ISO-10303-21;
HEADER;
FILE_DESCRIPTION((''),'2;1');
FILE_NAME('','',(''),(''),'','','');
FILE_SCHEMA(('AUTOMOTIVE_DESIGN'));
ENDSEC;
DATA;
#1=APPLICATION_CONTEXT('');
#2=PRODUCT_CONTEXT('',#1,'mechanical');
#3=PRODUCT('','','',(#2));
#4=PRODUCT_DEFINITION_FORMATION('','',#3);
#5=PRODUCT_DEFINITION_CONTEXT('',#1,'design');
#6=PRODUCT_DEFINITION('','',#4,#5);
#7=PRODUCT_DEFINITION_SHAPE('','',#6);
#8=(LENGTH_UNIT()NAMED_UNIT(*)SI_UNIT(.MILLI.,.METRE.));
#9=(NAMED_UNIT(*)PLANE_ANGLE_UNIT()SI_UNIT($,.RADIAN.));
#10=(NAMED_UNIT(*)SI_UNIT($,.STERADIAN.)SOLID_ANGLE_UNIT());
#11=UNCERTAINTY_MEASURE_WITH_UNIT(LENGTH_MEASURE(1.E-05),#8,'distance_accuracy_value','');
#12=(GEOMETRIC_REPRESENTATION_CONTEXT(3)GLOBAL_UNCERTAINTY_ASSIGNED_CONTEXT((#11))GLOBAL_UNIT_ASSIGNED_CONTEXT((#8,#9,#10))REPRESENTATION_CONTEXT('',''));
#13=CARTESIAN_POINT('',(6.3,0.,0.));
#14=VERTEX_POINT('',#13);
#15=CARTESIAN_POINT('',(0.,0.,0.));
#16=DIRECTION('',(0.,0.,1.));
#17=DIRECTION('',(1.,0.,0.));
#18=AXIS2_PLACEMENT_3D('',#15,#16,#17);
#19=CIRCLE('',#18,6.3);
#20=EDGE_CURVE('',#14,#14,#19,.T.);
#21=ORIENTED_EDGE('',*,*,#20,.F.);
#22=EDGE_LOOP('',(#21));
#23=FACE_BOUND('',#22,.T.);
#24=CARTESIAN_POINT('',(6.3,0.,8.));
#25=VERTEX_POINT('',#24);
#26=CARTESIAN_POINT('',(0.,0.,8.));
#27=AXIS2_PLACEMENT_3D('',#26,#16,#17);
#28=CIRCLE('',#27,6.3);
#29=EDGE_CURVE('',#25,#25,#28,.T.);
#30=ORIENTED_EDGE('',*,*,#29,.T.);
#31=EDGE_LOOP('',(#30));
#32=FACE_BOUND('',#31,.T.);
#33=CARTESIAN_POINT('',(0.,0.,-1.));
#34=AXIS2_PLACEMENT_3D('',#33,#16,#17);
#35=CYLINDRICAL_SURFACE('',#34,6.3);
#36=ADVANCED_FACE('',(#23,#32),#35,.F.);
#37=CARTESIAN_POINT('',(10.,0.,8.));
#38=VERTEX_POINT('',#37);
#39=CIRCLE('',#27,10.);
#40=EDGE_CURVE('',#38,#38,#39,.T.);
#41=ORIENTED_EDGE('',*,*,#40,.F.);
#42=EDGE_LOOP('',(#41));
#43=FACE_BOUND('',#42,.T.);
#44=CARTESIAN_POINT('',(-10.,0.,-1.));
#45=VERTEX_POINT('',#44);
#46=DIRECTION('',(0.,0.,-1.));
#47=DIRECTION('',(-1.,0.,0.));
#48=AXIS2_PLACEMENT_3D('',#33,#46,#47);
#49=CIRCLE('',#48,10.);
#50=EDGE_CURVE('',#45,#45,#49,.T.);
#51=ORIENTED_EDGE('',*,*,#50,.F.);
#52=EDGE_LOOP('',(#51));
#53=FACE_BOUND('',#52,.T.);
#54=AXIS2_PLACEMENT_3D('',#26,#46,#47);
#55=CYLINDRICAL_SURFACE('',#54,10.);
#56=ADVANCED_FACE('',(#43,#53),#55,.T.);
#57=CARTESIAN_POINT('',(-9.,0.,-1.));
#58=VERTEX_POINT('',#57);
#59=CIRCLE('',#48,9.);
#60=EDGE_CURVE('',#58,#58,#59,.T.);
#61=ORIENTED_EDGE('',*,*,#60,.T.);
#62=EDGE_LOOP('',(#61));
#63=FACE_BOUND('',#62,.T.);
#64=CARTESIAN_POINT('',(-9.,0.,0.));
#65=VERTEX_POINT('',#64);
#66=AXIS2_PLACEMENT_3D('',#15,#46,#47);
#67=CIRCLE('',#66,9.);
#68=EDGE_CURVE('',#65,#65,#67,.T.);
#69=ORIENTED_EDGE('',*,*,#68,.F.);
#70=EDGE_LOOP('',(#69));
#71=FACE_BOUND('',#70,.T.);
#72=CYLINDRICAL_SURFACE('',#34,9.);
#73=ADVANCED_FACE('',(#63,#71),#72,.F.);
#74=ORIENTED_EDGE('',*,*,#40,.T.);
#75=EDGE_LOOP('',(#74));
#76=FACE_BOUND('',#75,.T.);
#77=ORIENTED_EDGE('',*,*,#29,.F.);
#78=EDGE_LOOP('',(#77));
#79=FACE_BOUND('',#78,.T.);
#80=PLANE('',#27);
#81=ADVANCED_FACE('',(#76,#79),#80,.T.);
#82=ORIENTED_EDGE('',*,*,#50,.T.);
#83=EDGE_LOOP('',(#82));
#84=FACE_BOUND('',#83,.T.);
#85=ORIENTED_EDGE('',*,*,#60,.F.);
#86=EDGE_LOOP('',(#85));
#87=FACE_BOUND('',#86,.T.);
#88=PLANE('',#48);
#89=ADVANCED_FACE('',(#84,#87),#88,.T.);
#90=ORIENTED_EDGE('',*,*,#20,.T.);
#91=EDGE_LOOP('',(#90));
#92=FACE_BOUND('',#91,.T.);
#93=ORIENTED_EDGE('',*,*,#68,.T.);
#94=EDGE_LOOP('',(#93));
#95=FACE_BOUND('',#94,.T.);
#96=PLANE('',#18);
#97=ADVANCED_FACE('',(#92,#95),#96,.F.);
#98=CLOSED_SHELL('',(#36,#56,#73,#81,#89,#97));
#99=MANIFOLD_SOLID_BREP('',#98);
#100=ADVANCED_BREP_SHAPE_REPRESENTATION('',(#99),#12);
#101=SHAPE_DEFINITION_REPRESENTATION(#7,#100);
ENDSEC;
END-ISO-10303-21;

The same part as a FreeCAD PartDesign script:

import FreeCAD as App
import Part
import Sketcher

V = App.Vector
Q = App.Units.Quantity

doc = App.newDocument("Part")
params = doc.addObject("Spreadsheet::Sheet", "Params")
for row, (alias, value) in enumerate([
    ("sketch1_diameter", "20 mm"),
    ("pad1_length", "8 mm"),
    ("sketch2_diameter", "20 mm"),
    ("sketch2_diameter2", "18 mm"),
    ("pad2_length", "1 mm"),
    ("sketch3_diameter", "12.6 mm"),
], start=1):
    params.set(f"A{row}", alias)
    params.set(f"B{row}", "=" + value)
    params.setAlias(f"B{row}", alias)

body = doc.addObject("PartDesign::Body", "Body")

sketch1 = body.newObject("Sketcher::SketchObject", "Sketch")
sketch1.AttachmentSupport = (doc.getObject("XY_Plane"), [""])
sketch1.MapMode = "FlatFace"
sketch1.addGeometry(Part.Circle(V(0, 0, 0), V(0, 0, 1), 10), False)
sketch1.addConstraint([
    Sketcher.Constraint("Coincident", 0, 3, -1, 1),
    Sketcher.Constraint("Diameter", 0, Q("20 mm")),
])
sketch1.setExpression("Constraints[1]", "Params.sketch1_diameter")
pad1 = body.newObject("PartDesign::Pad", "Pad")
pad1.Profile = sketch1
pad1.setExpression("Length", "Params.pad1_length")

sketch2 = body.newObject("Sketcher::SketchObject", "Sketch001")
sketch2.AttachmentSupport = (doc.getObject("XY_Plane"), [""])
sketch2.MapMode = "FlatFace"
sketch2.AttachmentOffset = App.Placement(V(0, 0, -1), App.Rotation())
sketch2.addGeometry([
    Part.Circle(V(0, 0, 0), V(0, 0, 1), 10),
    Part.Circle(V(0, 0, 0), V(0, 0, 1), 9),
], False)
sketch2.addConstraint([
    Sketcher.Constraint("Coincident", 0, 3, -1, 1),
    Sketcher.Constraint("Coincident", 1, 3, -1, 1),
    Sketcher.Constraint("Diameter", 0, Q("20 mm")),
    Sketcher.Constraint("Diameter", 1, Q("18 mm")),
])
sketch2.setExpression("Constraints[2]", "Params.sketch2_diameter")
sketch2.setExpression("Constraints[3]", "Params.sketch2_diameter2")
pad2 = body.newObject("PartDesign::Pad", "Pad001")
pad2.Profile = sketch2
pad2.setExpression("Length", "Params.pad2_length")

sketch3 = body.newObject("Sketcher::SketchObject", "Sketch002")
sketch3.AttachmentSupport = (doc.getObject("XY_Plane"), [""])
sketch3.MapMode = "FlatFace"
sketch3.AttachmentOffset = App.Placement(V(0, 0, 8), App.Rotation())
sketch3.addGeometry(Part.Circle(V(0, 0, 0), V(0, 0, 1), 6), False)
sketch3.addConstraint([
    Sketcher.Constraint("Coincident", 0, 3, -1, 1),
    Sketcher.Constraint("Diameter", 0, Q("12.6 mm")),
])
sketch3.setExpression("Constraints[1]", "Params.sketch3_diameter")
pocket1 = body.newObject("PartDesign::Pocket", "Pocket")
pocket1.Profile = sketch3
pocket1.Type = "ThroughAll"

doc.recompute()
